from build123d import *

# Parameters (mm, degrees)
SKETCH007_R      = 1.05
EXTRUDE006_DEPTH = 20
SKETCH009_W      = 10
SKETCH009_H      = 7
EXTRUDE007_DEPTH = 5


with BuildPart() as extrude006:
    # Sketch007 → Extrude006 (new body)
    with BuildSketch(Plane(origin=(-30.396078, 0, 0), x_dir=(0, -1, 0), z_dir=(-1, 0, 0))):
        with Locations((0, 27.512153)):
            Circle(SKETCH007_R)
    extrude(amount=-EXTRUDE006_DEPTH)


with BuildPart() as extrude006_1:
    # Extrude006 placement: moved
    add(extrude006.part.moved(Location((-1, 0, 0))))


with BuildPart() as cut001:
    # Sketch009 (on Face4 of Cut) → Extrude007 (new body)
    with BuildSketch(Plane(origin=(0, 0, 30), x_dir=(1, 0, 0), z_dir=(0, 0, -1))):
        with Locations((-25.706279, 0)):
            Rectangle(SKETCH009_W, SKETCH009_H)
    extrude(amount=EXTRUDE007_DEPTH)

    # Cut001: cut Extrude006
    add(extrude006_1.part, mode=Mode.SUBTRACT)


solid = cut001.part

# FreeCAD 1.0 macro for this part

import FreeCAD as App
import Part
import Sketcher
Q = App.Units.Quantity

doc = App.newDocument("Part")
params = doc.addObject("Spreadsheet::Sheet", "Params")
for row, (alias, value) in enumerate([
    ("sketch1_diameter", "2.1 mm"),
    ("pad1_length", "20 mm"),
    ("sketch2_width", "10 mm"),
    ("sketch2_height", "7 mm"),
    ("pad2_length", "5 mm"),
], start=1):
    params.set(f"A{row}", alias)
    params.set(f"B{row}", "=" + value)
    params.setAlias(f"B{row}", alias)

body = doc.addObject("PartDesign::Body", "Body")

# Sketch on YZ plane
sketch1 = body.newObject("Sketcher::SketchObject", "Sketch")
sketch1.AttachmentSupport = (doc.getObject("YZ_Plane"), [""])
sketch1.MapMode = "FlatFace"
sketch1.AttachmentOffset = App.Placement(App.Vector(0, 0, -30.396078), App.Rotation())
sketch1.addGeometry(Part.Circle(App.Vector(0, 27.5, 0), App.Vector(0, 0, 1), 1.1), False)
sketch1.addConstraint([
    Sketcher.Constraint("PointOnObject", 0, 3, -2),
    Sketcher.Constraint("Diameter", 0, Q("2.1 mm")),
    Sketcher.Constraint("DistanceY", -1, 1, 0, 3, Q("27.512153 mm")),
])
sketch1.setExpression("Constraints[1]", "Params.sketch1_diameter")
pad1 = body.newObject("PartDesign::Pad", "Pad")
pad1.Profile = sketch1
pad1.setExpression("Length", "Params.pad1_length")
body2 = doc.addObject("PartDesign::Body", "Body001")
doc.recompute()

body.Placement = App.Placement(App.Vector(-1, 0, 0), App.Rotation(App.Vector(0, 0, 1), 0))
boolean = body2.newObject("PartDesign::Boolean", "Boolean")
boolean.Type = "Fuse"
boolean.addObjects([body])
body3 = doc.addObject("PartDesign::Body", "Body002")

# Sketch on XY plane
sketch2 = body3.newObject("Sketcher::SketchObject", "Sketch001")
sketch2.AttachmentSupport = (doc.getObject("XY_Plane002"), [""])
sketch2.MapMode = "FlatFace"
sketch2.AttachmentOffset = App.Placement(App.Vector(0, 0, 30), App.Rotation())
sketch2.addGeometry([
    Part.LineSegment(App.Vector(-31, -4, 0), App.Vector(-31, 4, 0)),
    Part.LineSegment(App.Vector(-31, 4, 0), App.Vector(-21, 4, 0)),
    Part.LineSegment(App.Vector(-21, 4, 0), App.Vector(-21, -4, 0)),
    Part.LineSegment(App.Vector(-21, -4, 0), App.Vector(-31, -4, 0)),
], False)
sketch2.addConstraint([
    Sketcher.Constraint("Coincident", 0, 2, 1, 1),
    Sketcher.Constraint("Coincident", 1, 2, 2, 1),
    Sketcher.Constraint("Coincident", 2, 2, 3, 1),
    Sketcher.Constraint("Coincident", 3, 2, 0, 1),
    Sketcher.Constraint("Vertical", 0),
    Sketcher.Constraint("Horizontal", 1),
    Sketcher.Constraint("Vertical", 2),
    Sketcher.Constraint("Horizontal", 3),
    Sketcher.Constraint("DistanceX", 1, 1, 1, 2, Q("10 mm")),
    Sketcher.Constraint("DistanceY", 0, 1, 0, 2, Q("7 mm")),
    Sketcher.Constraint("DistanceY", -1, 1, 0, 2, Q("3.5 mm")),
    Sketcher.Constraint("DistanceX", 0, 2, -1, 1, Q("30.706279 mm")),
])
sketch2.setExpression("Constraints[8]", "Params.sketch2_width")
sketch2.setExpression("Constraints[9]", "Params.sketch2_height")
pad2 = body3.newObject("PartDesign::Pad", "Pad001")
pad2.Profile = sketch2
pad2.setExpression("Length", "Params.pad2_length")
pad2.Reversed = True
doc.recompute()

boolean2 = body3.newObject("PartDesign::Boolean", "Boolean001")
boolean2.Type = "Cut"
boolean2.addObjects([body2])

doc.recompute()
